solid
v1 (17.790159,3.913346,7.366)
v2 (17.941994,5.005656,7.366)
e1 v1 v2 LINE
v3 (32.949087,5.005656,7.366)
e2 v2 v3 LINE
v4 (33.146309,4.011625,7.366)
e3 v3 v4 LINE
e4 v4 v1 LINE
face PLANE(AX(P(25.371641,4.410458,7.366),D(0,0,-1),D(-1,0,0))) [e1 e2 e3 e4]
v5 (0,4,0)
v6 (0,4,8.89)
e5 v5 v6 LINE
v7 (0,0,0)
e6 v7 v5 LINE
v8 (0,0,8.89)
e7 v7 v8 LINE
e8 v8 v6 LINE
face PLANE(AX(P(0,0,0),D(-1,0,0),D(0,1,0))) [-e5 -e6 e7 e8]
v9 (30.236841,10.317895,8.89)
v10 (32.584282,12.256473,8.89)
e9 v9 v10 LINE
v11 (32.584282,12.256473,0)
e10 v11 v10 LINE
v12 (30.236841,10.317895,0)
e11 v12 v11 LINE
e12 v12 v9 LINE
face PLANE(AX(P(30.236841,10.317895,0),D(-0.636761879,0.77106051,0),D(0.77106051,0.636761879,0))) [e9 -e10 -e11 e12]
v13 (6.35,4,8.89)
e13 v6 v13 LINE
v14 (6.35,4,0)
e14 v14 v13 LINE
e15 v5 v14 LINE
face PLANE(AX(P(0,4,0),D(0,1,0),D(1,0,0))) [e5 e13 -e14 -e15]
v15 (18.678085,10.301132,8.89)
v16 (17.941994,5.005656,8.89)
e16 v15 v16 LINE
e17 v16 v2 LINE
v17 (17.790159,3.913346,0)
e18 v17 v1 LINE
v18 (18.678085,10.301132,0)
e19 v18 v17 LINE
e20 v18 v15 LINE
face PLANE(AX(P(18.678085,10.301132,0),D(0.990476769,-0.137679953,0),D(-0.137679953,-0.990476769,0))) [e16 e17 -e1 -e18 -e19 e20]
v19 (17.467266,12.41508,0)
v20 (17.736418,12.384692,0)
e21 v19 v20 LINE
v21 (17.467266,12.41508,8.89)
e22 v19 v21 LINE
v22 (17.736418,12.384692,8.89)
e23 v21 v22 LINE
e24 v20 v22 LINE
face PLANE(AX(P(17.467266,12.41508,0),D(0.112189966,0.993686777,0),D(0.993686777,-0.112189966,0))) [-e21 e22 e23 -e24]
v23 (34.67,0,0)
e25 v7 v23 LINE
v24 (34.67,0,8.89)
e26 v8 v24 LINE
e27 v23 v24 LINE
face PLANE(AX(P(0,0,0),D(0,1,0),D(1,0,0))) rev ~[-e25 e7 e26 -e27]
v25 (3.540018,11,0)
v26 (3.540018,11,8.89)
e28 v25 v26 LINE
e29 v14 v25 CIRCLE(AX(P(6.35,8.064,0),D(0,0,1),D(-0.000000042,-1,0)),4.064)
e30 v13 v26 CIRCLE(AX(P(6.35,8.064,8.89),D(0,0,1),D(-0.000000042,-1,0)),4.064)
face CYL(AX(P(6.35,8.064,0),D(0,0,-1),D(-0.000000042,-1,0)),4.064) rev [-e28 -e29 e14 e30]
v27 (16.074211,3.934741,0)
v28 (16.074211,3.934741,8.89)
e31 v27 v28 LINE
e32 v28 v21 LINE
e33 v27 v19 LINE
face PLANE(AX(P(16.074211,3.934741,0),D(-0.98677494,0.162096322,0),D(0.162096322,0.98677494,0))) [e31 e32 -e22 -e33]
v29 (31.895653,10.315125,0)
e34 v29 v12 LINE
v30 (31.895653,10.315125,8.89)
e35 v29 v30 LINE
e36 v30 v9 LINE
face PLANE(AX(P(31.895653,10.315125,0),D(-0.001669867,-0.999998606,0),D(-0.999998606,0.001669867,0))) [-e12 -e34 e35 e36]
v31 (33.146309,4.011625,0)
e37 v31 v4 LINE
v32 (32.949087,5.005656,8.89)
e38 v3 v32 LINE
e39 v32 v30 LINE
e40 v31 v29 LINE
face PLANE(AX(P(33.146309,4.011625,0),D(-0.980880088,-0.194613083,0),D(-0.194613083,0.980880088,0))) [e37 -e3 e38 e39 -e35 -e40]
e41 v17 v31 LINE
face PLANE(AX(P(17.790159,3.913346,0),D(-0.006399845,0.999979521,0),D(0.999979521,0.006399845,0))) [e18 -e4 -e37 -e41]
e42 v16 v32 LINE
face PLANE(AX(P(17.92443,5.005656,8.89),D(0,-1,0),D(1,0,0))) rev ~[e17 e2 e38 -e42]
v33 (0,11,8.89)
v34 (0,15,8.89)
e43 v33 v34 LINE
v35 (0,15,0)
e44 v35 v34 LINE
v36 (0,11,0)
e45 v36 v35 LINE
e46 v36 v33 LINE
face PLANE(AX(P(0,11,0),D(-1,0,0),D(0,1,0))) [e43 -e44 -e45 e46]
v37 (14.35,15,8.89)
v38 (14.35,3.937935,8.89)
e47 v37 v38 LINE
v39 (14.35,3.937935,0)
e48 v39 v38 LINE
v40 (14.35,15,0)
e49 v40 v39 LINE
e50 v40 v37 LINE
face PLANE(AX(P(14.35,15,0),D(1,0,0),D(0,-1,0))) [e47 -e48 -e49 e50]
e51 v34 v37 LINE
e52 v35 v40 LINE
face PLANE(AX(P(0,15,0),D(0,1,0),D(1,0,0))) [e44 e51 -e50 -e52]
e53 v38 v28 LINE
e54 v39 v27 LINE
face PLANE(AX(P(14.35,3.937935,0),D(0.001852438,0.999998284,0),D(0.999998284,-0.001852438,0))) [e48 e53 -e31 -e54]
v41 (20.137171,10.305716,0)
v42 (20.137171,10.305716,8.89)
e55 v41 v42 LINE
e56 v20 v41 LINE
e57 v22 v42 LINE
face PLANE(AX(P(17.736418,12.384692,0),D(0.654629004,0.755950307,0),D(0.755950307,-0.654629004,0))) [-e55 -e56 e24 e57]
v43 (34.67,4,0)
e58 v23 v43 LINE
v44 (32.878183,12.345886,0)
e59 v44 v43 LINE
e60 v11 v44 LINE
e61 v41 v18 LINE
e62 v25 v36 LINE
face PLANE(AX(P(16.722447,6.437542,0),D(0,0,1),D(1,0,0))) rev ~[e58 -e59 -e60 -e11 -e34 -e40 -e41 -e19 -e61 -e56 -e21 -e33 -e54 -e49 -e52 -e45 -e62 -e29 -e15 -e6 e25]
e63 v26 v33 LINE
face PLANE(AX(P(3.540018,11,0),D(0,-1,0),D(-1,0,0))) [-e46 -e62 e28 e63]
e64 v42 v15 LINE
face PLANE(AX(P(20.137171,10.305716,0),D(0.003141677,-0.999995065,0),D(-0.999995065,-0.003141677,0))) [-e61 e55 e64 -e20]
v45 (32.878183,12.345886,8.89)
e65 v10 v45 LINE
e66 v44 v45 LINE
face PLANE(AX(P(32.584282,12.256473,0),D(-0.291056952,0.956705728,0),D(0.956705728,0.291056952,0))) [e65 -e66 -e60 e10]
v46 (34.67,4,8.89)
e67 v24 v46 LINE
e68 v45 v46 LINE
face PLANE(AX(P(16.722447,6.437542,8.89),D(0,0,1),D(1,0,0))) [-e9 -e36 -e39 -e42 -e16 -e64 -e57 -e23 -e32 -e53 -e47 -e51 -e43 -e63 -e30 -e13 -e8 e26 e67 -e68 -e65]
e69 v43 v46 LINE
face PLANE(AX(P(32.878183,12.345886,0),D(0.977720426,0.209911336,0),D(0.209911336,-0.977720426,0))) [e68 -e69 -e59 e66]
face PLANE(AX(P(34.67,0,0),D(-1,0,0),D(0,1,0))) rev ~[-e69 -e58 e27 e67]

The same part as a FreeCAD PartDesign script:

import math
import FreeCAD as App
import Part
import Sketcher

V = App.Vector
Q = App.Units.Quantity

doc = App.newDocument("Part")
params = doc.addObject("Spreadsheet::Sheet", "Params")
for row, (alias, value) in enumerate([
    ("sketch1_radius", "0.16 in"),
    ("sketch1_width", "0.25 in"),
    ("pad1_length", "0.35 in"),
    ("pad2_length", "0.06 in"),
], start=1):
    params.set(f"A{row}", alias)
    params.set(f"B{row}", "=" + value)
    params.setAlias(f"B{row}", alias)

body = doc.addObject("PartDesign::Body", "Body")

sketch1 = doc.addObject("Sketcher::SketchObject", "Sketch")
body.addObject(sketch1)
sketch1.AttachmentSupport = (doc.XY_Plane, [""])
sketch1.MapMode = "FlatFace"
sketch1.addGeometry([
    Part.LineSegment(V(0, 0, 0), V(34.67, 0, 0)),
    Part.LineSegment(V(34.67, 0, 0), V(34.67, 4, 0)),
    Part.LineSegment(V(34.67, 4, 0), V(32.88, 12.35, 0)),
    Part.LineSegment(V(32.88, 12.35, 0), V(32.58, 12.26, 0)),
    Part.LineSegment(V(32.58, 12.26, 0), V(30.24, 10.32, 0)),
    Part.LineSegment(V(30.24, 10.32, 0), V(31.9, 10.32, 0)),
    Part.LineSegment(V(31.9, 10.32, 0), V(33.15, 4.01, 0)),
    Part.LineSegment(V(33.15, 4.01, 0), V(17.79, 3.91, 0)),
    Part.LineSegment(V(17.79, 3.91, 0), V(18.68, 10.3, 0)),
    Part.LineSegment(V(18.68, 10.3, 0), V(20.14, 10.31, 0)),
    Part.LineSegment(V(20.14, 10.31, 0), V(17.74, 12.38, 0)),
    Part.LineSegment(V(17.74, 12.38, 0), V(17.47, 12.42, 0)),
    Part.LineSegment(V(17.47, 12.42, 0), V(16.07, 3.93, 0)),
    Part.LineSegment(V(16.07, 3.93, 0), V(14.35, 3.94, 0)),
    Part.LineSegment(V(14.35, 3.94, 0), V(14.35, 15, 0)),
    Part.LineSegment(V(14.35, 15, 0), V(0, 15, 0)),
    Part.LineSegment(V(0, 15, 0), V(0, 11, 0)),
    Part.LineSegment(V(0, 11, 0), V(3.54, 11, 0)),
    Part.ArcOfCircle(Part.Circle(V(6.35, 8.06, 0), V(0, 0, 1), 4.06), math.radians(-90), math.radians(134)),
    Part.LineSegment(V(6.35, 4, 0), V(0, 4, 0)),
    Part.LineSegment(V(0, 4, 0), V(0, 0, 0)),
], False)
sketch1.addConstraint([
    Sketcher.Constraint("Coincident", 0, 2, 1, 1),
    Sketcher.Constraint("Coincident", 1, 2, 2, 1),
    Sketcher.Constraint("Coincident", 2, 2, 3, 1),
    Sketcher.Constraint("Coincident", 3, 2, 4, 1),
    Sketcher.Constraint("Coincident", 4, 2, 5, 1),
    Sketcher.Constraint("Coincident", 5, 2, 6, 1),
    Sketcher.Constraint("Coincident", 6, 2, 7, 1),
    Sketcher.Constraint("Coincident", 7, 2, 8, 1),
    Sketcher.Constraint("Coincident", 8, 2, 9, 1),
    Sketcher.Constraint("Coincident", 9, 2, 10, 1),
    Sketcher.Constraint("Coincident", 10, 2, 11, 1),
    Sketcher.Constraint("Coincident", 11, 2, 12, 1),
    Sketcher.Constraint("Coincident", 12, 2, 13, 1),
    Sketcher.Constraint("Coincident", 13, 2, 14, 1),
    Sketcher.Constraint("Coincident", 14, 2, 15, 1),
    Sketcher.Constraint("Coincident", 15, 2, 16, 1),
    Sketcher.Constraint("Coincident", 16, 2, 17, 1),
    Sketcher.Constraint("Coincident", 17, 2, 18, 2),
    Sketcher.Constraint("Tangent", 18, 1, 19, 1),
    Sketcher.Constraint("Coincident", 19, 2, 20, 1),
    Sketcher.Constraint("Coincident", 20, 2, 0, 1),
    Sketcher.Constraint("Horizontal", 0),
    Sketcher.Constraint("Vertical", 1),
    Sketcher.Constraint("Vertical", 14),
    Sketcher.Constraint("Horizontal", 15),
    Sketcher.Constraint("Vertical", 16),
    Sketcher.Constraint("Horizontal", 17),
    Sketcher.Constraint("Horizontal", 19),
    Sketcher.Constraint("Vertical", 20),
    Sketcher.Constraint("Coincident", 20, 2, -1, 1),
    Sketcher.Constraint("PointOnObject", 15, 2, -2),
    Sketcher.Constraint("Horizontal", 1, 2, 18, 1),
    Sketcher.Constraint("Equal", 1, 16),
    Sketcher.Constraint("Radius", 18, Q("0.16 in")),
    Sketcher.Constraint("DistanceX", 19, 2, 19, 1, Q("0.25 in")),
    Sketcher.Constraint("Angle", 9, Q("0.180005 deg")),
    Sketcher.Constraint("DistanceX", 0, 1, 0, 2, Q("34.67 mm")),
    Sketcher.Constraint("DistanceX", 15, 2, 15, 1, Q("14.35 mm")),
    Sketcher.Constraint("DistanceY", 1, 1, 1, 2, Q("4 mm")),
    Sketcher.Constraint("DistanceX", -1, 1, 7, 2, Q("0.7004 in")),
    Sketcher.Constraint("DistanceY", 13, 2, 9, 2, Q("0.2507 in")),
    Sketcher.Constraint("Distance", 3, Q("0.307201 mm")),
    Sketcher.Constraint("DistanceY", -1, 1, 14, 2, Q("15 mm")),
    Sketcher.Constraint("DistanceX", 3, 2, 2, 2, Q("0.293901 mm")),
    Sketcher.Constraint("DistanceY", 6, 2, 5, 2, Q("6.3035 mm")),
    Sketcher.Constraint("Distance", 4, Q("3.044432 mm")),
    Sketcher.Constraint("Distance", 6, Q("6.426372 mm")),
    Sketcher.Constraint("DistanceY", 14, 1, 14, 2, Q("11.062065 mm")),
    Sketcher.Constraint("DistanceX", -1, 1, 4, 2, Q("30.236841 mm")),
    Sketcher.Constraint("DistanceX", -1, 1, 6, 2, Q("33.146309 mm")),
    Sketcher.Constraint("DistanceX", -1, 1, 9, 2, Q("20.137171 mm")),
    Sketcher.Constraint("DistanceX", -1, 1, 10, 2, Q("17.736418 mm")),
    Sketcher.Constraint("DistanceY", -1, 1, 10, 2, Q("12.384692 mm")),
    Sketcher.Constraint("DistanceY", -1, 1, 11, 2, Q("12.41508 mm")),
    Sketcher.Constraint("DistanceX", -1, 1, 12, 2, Q("16.074211 mm")),
    Sketcher.Constraint("DistanceY", -1, 1, 12, 2, Q("3.934741 mm")),
    Sketcher.Constraint("DistanceX", 3, 2, 1, 2, Q("2.085718 mm")),
    Sketcher.Constraint("DistanceY", 5, 2, 4, 2, Q("0.00277 mm")),
    Sketcher.Constraint("DistanceY", 7, 2, 4, 2, Q("6.404549 mm")),
    Sketcher.Constraint("DistanceY", 8, 2, 3, 2, Q("1.955341 mm")),
    Sketcher.Constraint("DistanceX", 11, 2, 8, 2, Q("1.210819 mm")),
    Sketcher.Constraint("Distance", 8, Q("6.449203 mm")),
])
sketch1.setExpression("Constraints[33]", "Params.sketch1_radius")
sketch1.setExpression("Constraints[34]", "Params.sketch1_width")
pad1 = doc.addObject("PartDesign::Pad", "Pad")
body.addObject(pad1)
pad1.Profile = sketch1
pad1.setExpression("Length", "Params.pad1_length")

sketch2 = doc.addObject("Sketcher::SketchObject", "Sketch001")
body.addObject(sketch2)
sketch2.AttachmentSupport = (doc.XY_Plane, [""])
sketch2.MapMode = "FlatFace"
sketch2.AttachmentOffset = App.Placement(V(0, 0, 0.35 * 25.4), App.Rotation())
sketch2.addGeometry([
    Part.LineSegment(V(17.9, 5, 0), V(16.1, 3.9, 0)),
    Part.LineSegment(V(16.1, 3.9, 0), V(34.6, 3.9, 0)),
    Part.LineSegment(V(34.6, 3.9, 0), V(33.1, 5, 0)),
    Part.LineSegment(V(33.1, 5, 0), V(17.9, 5, 0)),
], False)
sketch2.addConstraint([
    Sketcher.Constraint("Coincident", 0, 2, 1, 1),
    Sketcher.Constraint("Coincident", 1, 2, 2, 1),
    Sketcher.Constraint("Coincident", 2, 2, 3, 1),
    Sketcher.Constraint("Coincident", 3, 2, 0, 1),
    Sketcher.Constraint("Horizontal", 3),
    Sketcher.Constraint("Distance", 0, Q("2.14271 mm")),
    Sketcher.Constraint("Distance", 2, Q("1.908691 mm")),
    Sketcher.Constraint("DistanceX", 3, 2, 3, 1, Q("15.133143 mm")),
    Sketcher.Constraint("DistanceX", -1, 1, 0, 2, Q("16.09544 mm")),
    Sketcher.Constraint("DistanceY", -1, 1, 1, 2, Q("3.938822 mm")),
    Sketcher.Constraint("DistanceX", -1, 1, 3, 2, Q("17.92443 mm")),
    Sketcher.Constraint("DistanceX", 0, 2, 1, 2, Q("18.544842 mm")),
])
pad2 = doc.addObject("PartDesign::Pad", "Pad001")
body.addObject(pad2)
pad2.Profile = sketch2
pad2.setExpression("Length", "Params.pad2_length")
pad2.Reversed = True

doc.recompute()
